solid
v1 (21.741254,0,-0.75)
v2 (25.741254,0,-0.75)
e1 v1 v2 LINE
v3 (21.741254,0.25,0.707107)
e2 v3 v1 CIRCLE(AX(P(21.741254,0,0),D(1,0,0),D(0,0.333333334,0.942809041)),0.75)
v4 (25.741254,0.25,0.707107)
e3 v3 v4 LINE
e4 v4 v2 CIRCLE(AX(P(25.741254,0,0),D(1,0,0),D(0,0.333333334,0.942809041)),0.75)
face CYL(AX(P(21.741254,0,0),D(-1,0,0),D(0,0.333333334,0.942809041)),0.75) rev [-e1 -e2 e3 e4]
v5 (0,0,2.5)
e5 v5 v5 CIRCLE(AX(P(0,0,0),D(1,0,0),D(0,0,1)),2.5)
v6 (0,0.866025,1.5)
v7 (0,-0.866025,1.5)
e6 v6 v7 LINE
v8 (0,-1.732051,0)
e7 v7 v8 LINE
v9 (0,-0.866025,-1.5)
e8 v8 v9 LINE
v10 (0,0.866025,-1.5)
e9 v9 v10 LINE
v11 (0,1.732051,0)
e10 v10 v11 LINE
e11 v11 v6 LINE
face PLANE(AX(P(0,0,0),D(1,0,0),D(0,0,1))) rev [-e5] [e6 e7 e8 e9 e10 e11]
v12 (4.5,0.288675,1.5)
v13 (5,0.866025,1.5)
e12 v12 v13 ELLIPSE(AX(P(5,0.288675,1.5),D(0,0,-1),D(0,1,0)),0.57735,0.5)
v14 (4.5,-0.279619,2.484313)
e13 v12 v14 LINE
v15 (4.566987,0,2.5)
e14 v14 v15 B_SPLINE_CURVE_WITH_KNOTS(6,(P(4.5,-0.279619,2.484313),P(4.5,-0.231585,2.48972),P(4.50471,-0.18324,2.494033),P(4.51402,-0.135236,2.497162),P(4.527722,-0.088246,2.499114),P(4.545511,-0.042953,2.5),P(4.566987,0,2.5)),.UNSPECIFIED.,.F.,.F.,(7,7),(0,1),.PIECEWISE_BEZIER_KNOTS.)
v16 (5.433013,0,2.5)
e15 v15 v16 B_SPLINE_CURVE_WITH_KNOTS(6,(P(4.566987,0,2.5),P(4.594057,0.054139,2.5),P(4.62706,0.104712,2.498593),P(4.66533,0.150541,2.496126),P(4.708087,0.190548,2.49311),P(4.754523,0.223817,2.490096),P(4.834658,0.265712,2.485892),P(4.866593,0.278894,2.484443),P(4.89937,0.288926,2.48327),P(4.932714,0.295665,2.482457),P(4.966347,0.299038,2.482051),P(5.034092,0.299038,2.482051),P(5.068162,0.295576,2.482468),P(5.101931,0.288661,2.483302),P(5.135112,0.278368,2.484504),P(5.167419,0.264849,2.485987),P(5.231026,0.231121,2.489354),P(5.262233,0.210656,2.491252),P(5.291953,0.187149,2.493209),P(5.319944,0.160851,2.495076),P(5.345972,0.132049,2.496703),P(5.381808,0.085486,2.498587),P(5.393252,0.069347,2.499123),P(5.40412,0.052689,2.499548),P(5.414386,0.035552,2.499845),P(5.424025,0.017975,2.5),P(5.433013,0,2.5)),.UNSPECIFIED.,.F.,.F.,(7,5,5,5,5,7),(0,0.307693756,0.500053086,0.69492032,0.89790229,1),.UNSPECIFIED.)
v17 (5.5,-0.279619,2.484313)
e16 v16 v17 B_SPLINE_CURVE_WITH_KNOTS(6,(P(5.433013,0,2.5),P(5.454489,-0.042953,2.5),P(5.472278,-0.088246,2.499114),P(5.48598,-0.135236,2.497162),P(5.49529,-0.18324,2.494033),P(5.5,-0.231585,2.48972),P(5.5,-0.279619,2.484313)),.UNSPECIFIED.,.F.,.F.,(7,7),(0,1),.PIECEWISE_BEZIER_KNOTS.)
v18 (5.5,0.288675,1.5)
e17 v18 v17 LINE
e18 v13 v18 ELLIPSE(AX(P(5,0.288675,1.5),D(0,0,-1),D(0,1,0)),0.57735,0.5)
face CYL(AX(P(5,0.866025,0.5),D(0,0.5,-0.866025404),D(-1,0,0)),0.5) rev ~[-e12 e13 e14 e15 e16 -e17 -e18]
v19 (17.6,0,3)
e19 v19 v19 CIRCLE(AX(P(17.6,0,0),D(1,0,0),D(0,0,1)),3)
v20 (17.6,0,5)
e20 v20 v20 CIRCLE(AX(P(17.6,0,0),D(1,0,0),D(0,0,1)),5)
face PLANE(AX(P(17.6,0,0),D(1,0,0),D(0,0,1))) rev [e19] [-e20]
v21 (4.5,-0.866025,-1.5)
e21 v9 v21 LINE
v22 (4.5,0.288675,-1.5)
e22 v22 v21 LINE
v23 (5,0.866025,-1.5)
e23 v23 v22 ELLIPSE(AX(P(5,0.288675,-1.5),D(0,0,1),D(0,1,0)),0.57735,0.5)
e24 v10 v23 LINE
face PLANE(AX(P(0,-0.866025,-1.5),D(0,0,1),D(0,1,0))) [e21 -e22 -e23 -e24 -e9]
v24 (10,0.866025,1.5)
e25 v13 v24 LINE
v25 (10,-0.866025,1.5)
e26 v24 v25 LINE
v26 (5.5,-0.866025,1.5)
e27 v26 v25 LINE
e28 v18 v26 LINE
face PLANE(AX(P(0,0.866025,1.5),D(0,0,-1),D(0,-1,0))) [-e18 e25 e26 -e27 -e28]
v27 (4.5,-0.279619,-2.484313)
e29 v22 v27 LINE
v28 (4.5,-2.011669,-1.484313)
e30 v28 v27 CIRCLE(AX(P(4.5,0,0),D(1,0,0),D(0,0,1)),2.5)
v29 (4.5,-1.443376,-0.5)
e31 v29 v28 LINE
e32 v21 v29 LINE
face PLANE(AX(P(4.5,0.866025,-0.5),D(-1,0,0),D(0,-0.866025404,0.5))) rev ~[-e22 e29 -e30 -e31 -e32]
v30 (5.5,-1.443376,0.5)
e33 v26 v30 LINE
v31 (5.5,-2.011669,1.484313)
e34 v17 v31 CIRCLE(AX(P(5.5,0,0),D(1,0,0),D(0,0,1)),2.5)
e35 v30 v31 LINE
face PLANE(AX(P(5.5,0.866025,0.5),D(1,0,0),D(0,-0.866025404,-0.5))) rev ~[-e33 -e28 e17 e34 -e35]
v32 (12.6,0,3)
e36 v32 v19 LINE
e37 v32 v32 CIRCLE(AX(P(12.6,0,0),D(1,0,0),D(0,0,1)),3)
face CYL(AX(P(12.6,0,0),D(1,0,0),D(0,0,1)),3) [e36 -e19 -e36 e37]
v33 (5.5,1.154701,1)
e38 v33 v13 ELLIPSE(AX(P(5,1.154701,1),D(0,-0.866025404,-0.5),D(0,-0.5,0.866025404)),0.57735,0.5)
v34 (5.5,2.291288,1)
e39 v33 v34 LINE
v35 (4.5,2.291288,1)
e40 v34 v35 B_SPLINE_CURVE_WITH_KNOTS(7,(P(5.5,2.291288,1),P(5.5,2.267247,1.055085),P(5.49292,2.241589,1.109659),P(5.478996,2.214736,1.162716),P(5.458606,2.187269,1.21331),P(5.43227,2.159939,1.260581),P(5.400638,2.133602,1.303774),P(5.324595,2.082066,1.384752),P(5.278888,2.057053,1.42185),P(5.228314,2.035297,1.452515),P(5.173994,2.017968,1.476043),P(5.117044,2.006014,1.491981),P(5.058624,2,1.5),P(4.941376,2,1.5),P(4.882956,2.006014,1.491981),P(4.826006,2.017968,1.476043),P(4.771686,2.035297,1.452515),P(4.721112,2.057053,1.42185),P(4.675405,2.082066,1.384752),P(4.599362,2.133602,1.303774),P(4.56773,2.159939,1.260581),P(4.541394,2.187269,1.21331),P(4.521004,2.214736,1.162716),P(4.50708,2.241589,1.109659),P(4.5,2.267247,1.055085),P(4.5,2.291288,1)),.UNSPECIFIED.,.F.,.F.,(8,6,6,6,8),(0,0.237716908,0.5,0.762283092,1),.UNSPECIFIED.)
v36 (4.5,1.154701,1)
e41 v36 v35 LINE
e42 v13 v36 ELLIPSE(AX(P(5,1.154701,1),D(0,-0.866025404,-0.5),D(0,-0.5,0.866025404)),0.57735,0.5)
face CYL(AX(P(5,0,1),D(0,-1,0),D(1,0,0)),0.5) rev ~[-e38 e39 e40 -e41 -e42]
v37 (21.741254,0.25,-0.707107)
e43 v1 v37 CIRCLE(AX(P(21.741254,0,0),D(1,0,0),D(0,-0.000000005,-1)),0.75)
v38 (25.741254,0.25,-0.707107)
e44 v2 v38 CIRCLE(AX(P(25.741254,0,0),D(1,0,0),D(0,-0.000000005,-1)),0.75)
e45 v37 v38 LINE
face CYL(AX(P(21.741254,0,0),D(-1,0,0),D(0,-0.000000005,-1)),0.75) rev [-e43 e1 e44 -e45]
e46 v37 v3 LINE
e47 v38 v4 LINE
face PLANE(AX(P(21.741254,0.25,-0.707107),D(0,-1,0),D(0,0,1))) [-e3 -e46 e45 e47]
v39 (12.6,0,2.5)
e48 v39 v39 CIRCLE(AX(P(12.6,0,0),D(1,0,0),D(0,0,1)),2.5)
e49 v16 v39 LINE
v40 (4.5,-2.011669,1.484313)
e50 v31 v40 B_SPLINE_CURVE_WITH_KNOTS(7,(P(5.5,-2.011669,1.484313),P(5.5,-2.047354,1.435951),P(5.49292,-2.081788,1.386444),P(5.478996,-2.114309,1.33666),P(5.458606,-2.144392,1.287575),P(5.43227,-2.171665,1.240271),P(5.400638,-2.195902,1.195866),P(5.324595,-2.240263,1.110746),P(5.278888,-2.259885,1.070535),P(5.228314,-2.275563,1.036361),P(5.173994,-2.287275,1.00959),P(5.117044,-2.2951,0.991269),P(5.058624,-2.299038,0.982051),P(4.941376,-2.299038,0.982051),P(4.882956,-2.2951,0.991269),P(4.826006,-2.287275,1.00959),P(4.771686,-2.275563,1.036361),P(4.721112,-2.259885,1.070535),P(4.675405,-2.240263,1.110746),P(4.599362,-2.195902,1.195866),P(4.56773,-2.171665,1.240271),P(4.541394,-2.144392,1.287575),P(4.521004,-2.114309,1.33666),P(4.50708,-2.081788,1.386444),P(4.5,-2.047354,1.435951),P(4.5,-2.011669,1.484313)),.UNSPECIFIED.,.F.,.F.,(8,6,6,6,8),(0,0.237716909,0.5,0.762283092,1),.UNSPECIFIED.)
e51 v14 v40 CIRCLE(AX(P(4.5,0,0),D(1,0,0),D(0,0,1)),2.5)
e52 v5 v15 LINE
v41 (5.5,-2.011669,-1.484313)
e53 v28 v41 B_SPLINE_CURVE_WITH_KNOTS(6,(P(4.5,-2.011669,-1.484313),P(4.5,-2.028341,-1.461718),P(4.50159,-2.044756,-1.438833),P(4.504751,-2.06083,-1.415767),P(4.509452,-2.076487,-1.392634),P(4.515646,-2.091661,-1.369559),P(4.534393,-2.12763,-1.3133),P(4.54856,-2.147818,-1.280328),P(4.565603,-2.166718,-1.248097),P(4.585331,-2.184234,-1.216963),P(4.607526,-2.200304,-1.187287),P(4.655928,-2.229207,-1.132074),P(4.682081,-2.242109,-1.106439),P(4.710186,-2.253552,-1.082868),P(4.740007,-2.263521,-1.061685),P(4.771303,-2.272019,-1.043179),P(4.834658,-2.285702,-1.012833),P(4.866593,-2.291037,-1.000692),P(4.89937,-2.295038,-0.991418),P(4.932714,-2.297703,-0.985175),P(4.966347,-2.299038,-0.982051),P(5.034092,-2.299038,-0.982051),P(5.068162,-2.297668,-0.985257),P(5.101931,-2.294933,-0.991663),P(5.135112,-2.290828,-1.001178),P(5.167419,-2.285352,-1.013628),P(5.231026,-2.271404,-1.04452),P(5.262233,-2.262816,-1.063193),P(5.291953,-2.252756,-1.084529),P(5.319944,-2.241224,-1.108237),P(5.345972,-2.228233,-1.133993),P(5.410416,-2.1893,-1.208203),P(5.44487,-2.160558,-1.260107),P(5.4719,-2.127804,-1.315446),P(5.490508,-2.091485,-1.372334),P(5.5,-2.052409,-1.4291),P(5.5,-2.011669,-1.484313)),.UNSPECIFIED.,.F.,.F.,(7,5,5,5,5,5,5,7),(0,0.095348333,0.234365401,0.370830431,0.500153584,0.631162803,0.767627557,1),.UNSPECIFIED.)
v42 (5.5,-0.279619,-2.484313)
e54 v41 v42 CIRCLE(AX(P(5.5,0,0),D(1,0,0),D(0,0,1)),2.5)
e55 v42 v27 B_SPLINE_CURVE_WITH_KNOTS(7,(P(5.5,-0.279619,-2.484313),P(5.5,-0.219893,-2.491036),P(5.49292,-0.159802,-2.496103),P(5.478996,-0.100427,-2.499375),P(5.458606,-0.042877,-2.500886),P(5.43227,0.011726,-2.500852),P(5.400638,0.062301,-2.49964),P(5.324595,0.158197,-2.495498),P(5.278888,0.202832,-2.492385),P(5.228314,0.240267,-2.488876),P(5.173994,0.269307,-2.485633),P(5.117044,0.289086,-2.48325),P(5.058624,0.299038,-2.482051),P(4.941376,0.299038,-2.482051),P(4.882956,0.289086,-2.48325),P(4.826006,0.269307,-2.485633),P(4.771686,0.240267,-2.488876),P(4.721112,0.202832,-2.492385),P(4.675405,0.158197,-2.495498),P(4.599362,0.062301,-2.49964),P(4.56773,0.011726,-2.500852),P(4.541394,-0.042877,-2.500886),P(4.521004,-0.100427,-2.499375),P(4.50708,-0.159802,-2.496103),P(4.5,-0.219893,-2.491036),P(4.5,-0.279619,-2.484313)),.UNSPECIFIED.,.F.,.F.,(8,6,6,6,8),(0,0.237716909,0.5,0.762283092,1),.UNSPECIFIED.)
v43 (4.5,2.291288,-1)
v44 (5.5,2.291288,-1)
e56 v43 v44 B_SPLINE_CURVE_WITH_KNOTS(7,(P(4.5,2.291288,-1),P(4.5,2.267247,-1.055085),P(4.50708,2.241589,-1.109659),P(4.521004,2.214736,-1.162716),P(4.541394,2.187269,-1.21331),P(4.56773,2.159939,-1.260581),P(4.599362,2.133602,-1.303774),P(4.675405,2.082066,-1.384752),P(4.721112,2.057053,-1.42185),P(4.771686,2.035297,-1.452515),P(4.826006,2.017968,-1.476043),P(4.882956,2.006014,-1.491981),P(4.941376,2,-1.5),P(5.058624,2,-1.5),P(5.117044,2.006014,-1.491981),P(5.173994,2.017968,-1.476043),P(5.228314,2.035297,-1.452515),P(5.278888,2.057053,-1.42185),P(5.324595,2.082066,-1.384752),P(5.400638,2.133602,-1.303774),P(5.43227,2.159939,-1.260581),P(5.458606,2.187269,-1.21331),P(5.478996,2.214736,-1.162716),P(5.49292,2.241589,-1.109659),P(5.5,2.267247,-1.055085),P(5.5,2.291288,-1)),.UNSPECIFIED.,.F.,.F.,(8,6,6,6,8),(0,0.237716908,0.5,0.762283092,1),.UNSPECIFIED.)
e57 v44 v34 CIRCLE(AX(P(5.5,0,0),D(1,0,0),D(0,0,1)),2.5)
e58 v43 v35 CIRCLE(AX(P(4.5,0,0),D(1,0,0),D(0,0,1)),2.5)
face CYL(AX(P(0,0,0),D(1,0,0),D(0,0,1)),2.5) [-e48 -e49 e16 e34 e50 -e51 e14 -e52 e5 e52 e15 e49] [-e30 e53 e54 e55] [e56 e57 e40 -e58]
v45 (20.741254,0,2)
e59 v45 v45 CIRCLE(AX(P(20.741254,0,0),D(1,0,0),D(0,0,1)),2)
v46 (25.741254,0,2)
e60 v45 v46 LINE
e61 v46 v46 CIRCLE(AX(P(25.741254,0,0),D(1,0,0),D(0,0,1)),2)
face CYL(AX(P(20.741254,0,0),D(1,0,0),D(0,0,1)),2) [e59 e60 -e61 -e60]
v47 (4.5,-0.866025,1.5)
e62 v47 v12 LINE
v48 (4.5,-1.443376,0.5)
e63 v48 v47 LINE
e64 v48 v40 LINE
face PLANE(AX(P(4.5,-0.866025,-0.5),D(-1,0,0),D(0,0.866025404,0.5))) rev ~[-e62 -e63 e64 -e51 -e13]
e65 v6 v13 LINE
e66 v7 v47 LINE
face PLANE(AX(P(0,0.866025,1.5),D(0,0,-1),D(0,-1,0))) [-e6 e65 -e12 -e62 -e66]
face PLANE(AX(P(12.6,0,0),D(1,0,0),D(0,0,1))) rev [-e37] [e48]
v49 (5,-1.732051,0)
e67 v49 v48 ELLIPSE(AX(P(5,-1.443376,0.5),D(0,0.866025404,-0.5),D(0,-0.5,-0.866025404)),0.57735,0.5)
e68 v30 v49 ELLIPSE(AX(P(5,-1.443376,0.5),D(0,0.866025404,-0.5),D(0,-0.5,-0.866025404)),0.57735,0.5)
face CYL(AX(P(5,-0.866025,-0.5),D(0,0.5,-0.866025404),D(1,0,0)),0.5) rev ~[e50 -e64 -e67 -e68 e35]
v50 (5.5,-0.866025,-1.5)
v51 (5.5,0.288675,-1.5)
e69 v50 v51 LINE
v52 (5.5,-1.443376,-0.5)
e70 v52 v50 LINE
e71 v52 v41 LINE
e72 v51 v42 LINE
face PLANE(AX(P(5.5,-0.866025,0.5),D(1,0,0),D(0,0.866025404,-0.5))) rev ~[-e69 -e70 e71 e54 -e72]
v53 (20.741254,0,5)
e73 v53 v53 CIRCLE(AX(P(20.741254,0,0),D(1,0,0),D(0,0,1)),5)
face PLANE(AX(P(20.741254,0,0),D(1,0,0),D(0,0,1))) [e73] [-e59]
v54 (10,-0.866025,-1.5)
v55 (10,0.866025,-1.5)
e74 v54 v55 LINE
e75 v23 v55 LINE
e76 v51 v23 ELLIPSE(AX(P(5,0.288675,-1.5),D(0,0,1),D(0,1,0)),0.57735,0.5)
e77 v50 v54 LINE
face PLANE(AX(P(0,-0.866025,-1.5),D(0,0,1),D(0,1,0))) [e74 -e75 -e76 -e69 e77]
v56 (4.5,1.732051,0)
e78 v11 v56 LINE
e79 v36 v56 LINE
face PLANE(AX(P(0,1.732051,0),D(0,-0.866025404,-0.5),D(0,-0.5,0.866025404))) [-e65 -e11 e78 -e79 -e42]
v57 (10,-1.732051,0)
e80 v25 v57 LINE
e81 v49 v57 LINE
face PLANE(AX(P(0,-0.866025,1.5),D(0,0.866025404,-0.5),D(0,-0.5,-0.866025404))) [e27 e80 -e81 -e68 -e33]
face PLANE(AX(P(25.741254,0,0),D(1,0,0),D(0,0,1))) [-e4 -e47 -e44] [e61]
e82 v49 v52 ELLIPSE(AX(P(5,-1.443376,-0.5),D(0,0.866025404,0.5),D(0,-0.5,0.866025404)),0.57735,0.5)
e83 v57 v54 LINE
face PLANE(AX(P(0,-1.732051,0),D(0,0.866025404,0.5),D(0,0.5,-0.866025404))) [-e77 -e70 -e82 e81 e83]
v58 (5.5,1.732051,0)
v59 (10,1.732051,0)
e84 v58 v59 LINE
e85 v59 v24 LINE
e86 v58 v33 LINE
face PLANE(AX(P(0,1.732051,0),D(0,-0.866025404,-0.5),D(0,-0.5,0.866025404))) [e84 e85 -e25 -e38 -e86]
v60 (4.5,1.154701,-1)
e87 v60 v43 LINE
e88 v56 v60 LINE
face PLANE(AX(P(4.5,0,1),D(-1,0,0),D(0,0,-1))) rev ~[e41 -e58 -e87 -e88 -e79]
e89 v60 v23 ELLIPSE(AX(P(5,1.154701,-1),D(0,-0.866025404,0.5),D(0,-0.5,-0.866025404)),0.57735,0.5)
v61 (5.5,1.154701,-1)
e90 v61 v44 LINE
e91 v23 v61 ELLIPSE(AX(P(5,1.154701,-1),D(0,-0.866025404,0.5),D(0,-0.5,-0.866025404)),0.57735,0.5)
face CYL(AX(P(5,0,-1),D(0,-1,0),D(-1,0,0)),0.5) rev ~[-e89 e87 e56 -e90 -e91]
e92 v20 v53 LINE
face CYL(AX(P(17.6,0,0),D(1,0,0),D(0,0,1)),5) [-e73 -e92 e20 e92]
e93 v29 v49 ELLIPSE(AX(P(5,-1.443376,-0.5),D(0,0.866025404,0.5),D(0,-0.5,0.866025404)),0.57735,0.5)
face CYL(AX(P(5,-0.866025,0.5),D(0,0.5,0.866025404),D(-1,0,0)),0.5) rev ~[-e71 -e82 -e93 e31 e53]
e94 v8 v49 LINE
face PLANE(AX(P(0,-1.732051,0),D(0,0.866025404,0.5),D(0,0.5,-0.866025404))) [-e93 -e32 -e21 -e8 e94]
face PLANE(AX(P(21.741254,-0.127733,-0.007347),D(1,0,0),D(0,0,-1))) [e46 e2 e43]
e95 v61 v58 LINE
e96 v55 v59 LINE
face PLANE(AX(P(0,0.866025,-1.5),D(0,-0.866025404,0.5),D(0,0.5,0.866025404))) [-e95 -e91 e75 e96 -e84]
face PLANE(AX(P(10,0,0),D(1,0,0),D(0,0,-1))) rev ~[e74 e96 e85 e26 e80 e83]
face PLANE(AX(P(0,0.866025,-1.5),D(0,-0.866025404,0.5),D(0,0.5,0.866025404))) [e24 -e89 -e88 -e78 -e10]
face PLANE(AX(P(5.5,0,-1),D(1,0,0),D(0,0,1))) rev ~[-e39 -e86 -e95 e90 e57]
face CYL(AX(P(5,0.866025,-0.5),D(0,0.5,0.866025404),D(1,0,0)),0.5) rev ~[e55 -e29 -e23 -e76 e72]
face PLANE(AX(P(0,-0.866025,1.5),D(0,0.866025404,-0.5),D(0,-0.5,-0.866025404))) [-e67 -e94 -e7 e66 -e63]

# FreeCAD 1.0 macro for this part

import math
import FreeCAD as App
import Part
import Sketcher

V = App.Vector
Q = App.Units.Quantity

doc = App.newDocument("Part")
body = doc.addObject("PartDesign::Body", "Body")

sketch1 = body.newObject("Sketcher::SketchObject", "Sketch")
sketch1.AttachmentSupport = (doc.getObject("XY_Plane"), [""])
sketch1.MapMode = "FlatFace"
sketch1.addGeometry(Part.LineSegment(V(12.6, 2.5, 0), V(0, 2.5, 0)), False)
sketch1.addGeometry(Part.LineSegment(V(0, 2.5, 0), V(0, 0, 0)), False)
sketch1.addGeometry(Part.LineSegment(V(0, 0, 0), V(25.7, 0, 0)), False)
sketch1.addGeometry(Part.LineSegment(V(25.7, 0, 0), V(25.7, 2, 0)), False)
sketch1.addGeometry(Part.LineSegment(V(25.7, 2, 0), V(20.7, 2, 0)), False)
sketch1.addGeometry(Part.LineSegment(V(20.7, 2, 0), V(20.7, 5, 0)), False)
sketch1.addGeometry(Part.LineSegment(V(20.7, 5, 0), V(17.6, 5, 0)), False)
sketch1.addGeometry(Part.LineSegment(V(17.6, 5, 0), V(17.6, 3, 0)), False)
sketch1.addGeometry(Part.LineSegment(V(17.6, 3, 0), V(12.6, 3, 0)), False)
sketch1.addGeometry(Part.LineSegment(V(12.6, 3, 0), V(12.6, 2.5, 0)), False)
sketch1.addConstraint(Sketcher.Constraint("Coincident", 0, 2, 1, 1))
sketch1.addConstraint(Sketcher.Constraint("Coincident", 1, 2, 2, 1))
sketch1.addConstraint(Sketcher.Constraint("Coincident", 2, 2, 3, 1))
sketch1.addConstraint(Sketcher.Constraint("Coincident", 3, 2, 4, 1))
sketch1.addConstraint(Sketcher.Constraint("Coincident", 4, 2, 5, 1))
sketch1.addConstraint(Sketcher.Constraint("Coincident", 5, 2, 6, 1))
sketch1.addConstraint(Sketcher.Constraint("Coincident", 6, 2, 7, 1))
sketch1.addConstraint(Sketcher.Constraint("Coincident", 7, 2, 8, 1))
sketch1.addConstraint(Sketcher.Constraint("Coincident", 8, 2, 9, 1))
sketch1.addConstraint(Sketcher.Constraint("Coincident", 9, 2, 0, 1))
sketch1.addConstraint(Sketcher.Constraint("Horizontal", 0))
sketch1.addConstraint(Sketcher.Constraint("Vertical", 1))
sketch1.addConstraint(Sketcher.Constraint("Horizontal", 2))
sketch1.addConstraint(Sketcher.Constraint("Vertical", 3))
sketch1.addConstraint(Sketcher.Constraint("Horizontal", 4))
sketch1.addConstraint(Sketcher.Constraint("Vertical", 5))
sketch1.addConstraint(Sketcher.Constraint("Horizontal", 6))
sketch1.addConstraint(Sketcher.Constraint("Vertical", 7))
sketch1.addConstraint(Sketcher.Constraint("Horizontal", 8))
sketch1.addConstraint(Sketcher.Constraint("Vertical", 9))
sketch1.addConstraint(Sketcher.Constraint("Coincident", 1, 2, -1, 1))
sketch1.addConstraint(Sketcher.Constraint("Equal", 4, 8))
sketch1.addConstraint(Sketcher.Constraint("Equal", 3, 7))
sketch1.addConstraint(Sketcher.Constraint("DistanceX", 4, 2, 4, 1, Q("5 mm")))
sketch1.addConstraint(Sketcher.Constraint("DistanceY", 3, 1, 3, 2, Q("2 mm")))
sketch1.addConstraint(Sketcher.Constraint("DistanceY", 5, 1, 5, 2, Q("3 mm")))
sketch1.addConstraint(Sketcher.Constraint("DistanceX", 0, 2, 0, 1, Q("12.6 mm")))
sketch1.addConstraint(Sketcher.Constraint("DistanceY", 1, 2, 1, 1, Q("2.5 mm")))
sketch1.addConstraint(Sketcher.Constraint("DistanceX", 2, 1, 2, 2, Q("25.741254 mm")))
revolution = body.newObject("PartDesign::Revolution", "Revolution")
revolution.Profile = sketch1
revolution.ReferenceAxis = (sketch1, ["H_Axis"])
revolution.Angle = 360

sketch2 = body.newObject("Sketcher::SketchObject", "Sketch001")
sketch2.AttachmentSupport = (doc.getObject("YZ_Plane"), [""])
sketch2.MapMode = "FlatFace"
sketch2.addGeometry(Part.LineSegment(V(1.7, 0, 0), V(0.9, 1.5, 0)), False)
sketch2.addGeometry(Part.LineSegment(V(0.9, 1.5, 0), V(-0.9, 1.5, 0)), False)
sketch2.addGeometry(Part.LineSegment(V(-0.9, 1.5, 0), V(-1.7, 0, 0)), False)
sketch2.addGeometry(Part.LineSegment(V(-1.7, 0, 0), V(-0.9, -1.5, 0)), False)
sketch2.addGeometry(Part.LineSegment(V(-0.9, -1.5, 0), V(0.9, -1.5, 0)), False)
sketch2.addGeometry(Part.LineSegment(V(0.9, -1.5, 0), V(1.7, 0, 0)), False)
sketch2.addConstraint(Sketcher.Constraint("Coincident", 0, 2, 1, 1))
sketch2.addConstraint(Sketcher.Constraint("Coincident", 1, 2, 2, 1))
sketch2.addConstraint(Sketcher.Constraint("Coincident", 2, 2, 3, 1))
sketch2.addConstraint(Sketcher.Constraint("Coincident", 3, 2, 4, 1))
sketch2.addConstraint(Sketcher.Constraint("Coincident", 4, 2, 5, 1))
sketch2.addConstraint(Sketcher.Constraint("Coincident", 5, 2, 0, 1))
sketch2.addConstraint(Sketcher.Constraint("Horizontal", 1))
sketch2.addConstraint(Sketcher.Constraint("Horizontal", 4))
sketch2.addConstraint(Sketcher.Constraint("Symmetric", 0, 2, 3, 2, -1, 1))
sketch2.addConstraint(Sketcher.Constraint("Symmetric", 2, 2, 5, 2, -1, 1))
sketch2.addConstraint(Sketcher.Constraint("PointOnObject", 2, 2, -1))
sketch2.addConstraint(Sketcher.Constraint("Parallel", 2, 5))
sketch2.addConstraint(Sketcher.Constraint("Vertical", 1, 2, 3, 2))
sketch2.addConstraint(Sketcher.Constraint("Angle", 0, Q("120 deg")))
sketch2.addConstraint(Sketcher.Constraint("DistanceY", 3, 2, 1, 2, Q("3 mm")))
sketch2.addConstraint(Sketcher.Constraint("DistanceX", 1, 2, 1, 1, Q("1.732051 mm")))
pocket1 = body.newObject("PartDesign::Pocket", "Pocket")
pocket1.Profile = sketch2
pocket1.Length = 10
pocket1.Reversed = True

sketch3 = body.newObject("Sketcher::SketchObject", "Sketch002")
sketch3.AttachmentSupport = (doc.getObject("XZ_Plane"), [""])
sketch3.MapMode = "FlatFace"
sketch3.addGeometry(Part.LineSegment(V(5.5, 1, 0), V(5.5, -1, 0)), False)
sketch3.addGeometry(Part.ArcOfCircle(Part.Circle(V(5, -1, 0), V(0, 0, 1), 0.5), math.radians(180), math.radians(360)), False)
sketch3.addGeometry(Part.LineSegment(V(4.5, -1, 0), V(4.5, 1, 0)), False)
sketch3.addGeometry(Part.ArcOfCircle(Part.Circle(V(5, 1, 0), V(0, 0, 1), 0.5), math.radians(0), math.radians(180)), False)
sketch3.addConstraint(Sketcher.Constraint("Tangent", 0, 2, 1, 2))
sketch3.addConstraint(Sketcher.Constraint("Tangent", 1, 1, 2, 1))
sketch3.addConstraint(Sketcher.Constraint("Tangent", 2, 2, 3, 2))
sketch3.addConstraint(Sketcher.Constraint("Tangent", 3, 1, 0, 1))
sketch3.addConstraint(Sketcher.Constraint("Vertical", 0))
sketch3.addConstraint(Sketcher.Constraint("Vertical", 2))
sketch3.addConstraint(Sketcher.Constraint("Radius", 1, Q("0.5 mm")))
sketch3.addConstraint(Sketcher.Constraint("DistanceY", 0, 2, 0, 1, Q("2 mm")))
sketch3.addConstraint(Sketcher.Constraint("DistanceX", -1, 1, 1, 3, Q("5 mm")))
sketch3.addConstraint(Sketcher.Constraint("DistanceY", 1, 3, -1, 1, Q("1 mm")))
pocket2 = body.newObject("PartDesign::Pocket", "Pocket001")
pocket2.Profile = sketch3
pocket2.Length = 18
doc.recompute()

polarpattern = body.newObject("PartDesign::PolarPattern", "PolarPattern")
polarpattern.Originals = [pocket2]
polarpattern.Axis = (doc.getObject("X_Axis"), [""])
polarpattern.Angle = 360
polarpattern.Occurrences = 3
body.Tip = polarpattern

sketch4 = body.newObject("Sketcher::SketchObject", "Sketch003")
sketch4.AttachmentSupport = (doc.getObject("YZ_Plane"), [""])
sketch4.MapMode = "FlatFace"
sketch4.AttachmentOffset = App.Placement(V(0, 0, 21.741254), App.Rotation())
sketch4.addGeometry(Part.LineSegment(V(0.25, -0.71, 0), V(0.25, 0.71, 0)), False)
sketch4.addGeometry(Part.ArcOfCircle(Part.Circle(V(0, 0, 0), V(0, 0, 1), 0.75), math.radians(71), math.radians(270)), False)
sketch4.addGeometry(Part.ArcOfCircle(Part.Circle(V(0, 0, 0), V(0, 0, 1), 0.75), math.radians(-90), math.radians(-70.53)), False)
sketch4.addConstraint(Sketcher.Constraint("Coincident", 0, 2, 1, 1))
sketch4.addConstraint(Sketcher.Constraint("Tangent", 1, 2, 2, 1))
sketch4.addConstraint(Sketcher.Constraint("Coincident", 2, 2, 0, 1))
sketch4.addConstraint(Sketcher.Constraint("Vertical", 0))
sketch4.addConstraint(Sketcher.Constraint("Coincident", 1, 3, -1, 1))
sketch4.addConstraint(Sketcher.Constraint("Equal", 1, 2))
sketch4.addConstraint(Sketcher.Constraint("PointOnObject", 1, 2, -2))
sketch4.addConstraint(Sketcher.Constraint("Radius", 1, Q("0.75 mm")))
sketch4.addConstraint(Sketcher.Constraint("DistanceX", -1, 1, 0, 2, Q("0.25 mm")))
pocket3 = body.newObject("PartDesign::Pocket", "Pocket002")
pocket3.Profile = sketch4
pocket3.Length = 4
pocket3.Reversed = True

doc.recompute()
